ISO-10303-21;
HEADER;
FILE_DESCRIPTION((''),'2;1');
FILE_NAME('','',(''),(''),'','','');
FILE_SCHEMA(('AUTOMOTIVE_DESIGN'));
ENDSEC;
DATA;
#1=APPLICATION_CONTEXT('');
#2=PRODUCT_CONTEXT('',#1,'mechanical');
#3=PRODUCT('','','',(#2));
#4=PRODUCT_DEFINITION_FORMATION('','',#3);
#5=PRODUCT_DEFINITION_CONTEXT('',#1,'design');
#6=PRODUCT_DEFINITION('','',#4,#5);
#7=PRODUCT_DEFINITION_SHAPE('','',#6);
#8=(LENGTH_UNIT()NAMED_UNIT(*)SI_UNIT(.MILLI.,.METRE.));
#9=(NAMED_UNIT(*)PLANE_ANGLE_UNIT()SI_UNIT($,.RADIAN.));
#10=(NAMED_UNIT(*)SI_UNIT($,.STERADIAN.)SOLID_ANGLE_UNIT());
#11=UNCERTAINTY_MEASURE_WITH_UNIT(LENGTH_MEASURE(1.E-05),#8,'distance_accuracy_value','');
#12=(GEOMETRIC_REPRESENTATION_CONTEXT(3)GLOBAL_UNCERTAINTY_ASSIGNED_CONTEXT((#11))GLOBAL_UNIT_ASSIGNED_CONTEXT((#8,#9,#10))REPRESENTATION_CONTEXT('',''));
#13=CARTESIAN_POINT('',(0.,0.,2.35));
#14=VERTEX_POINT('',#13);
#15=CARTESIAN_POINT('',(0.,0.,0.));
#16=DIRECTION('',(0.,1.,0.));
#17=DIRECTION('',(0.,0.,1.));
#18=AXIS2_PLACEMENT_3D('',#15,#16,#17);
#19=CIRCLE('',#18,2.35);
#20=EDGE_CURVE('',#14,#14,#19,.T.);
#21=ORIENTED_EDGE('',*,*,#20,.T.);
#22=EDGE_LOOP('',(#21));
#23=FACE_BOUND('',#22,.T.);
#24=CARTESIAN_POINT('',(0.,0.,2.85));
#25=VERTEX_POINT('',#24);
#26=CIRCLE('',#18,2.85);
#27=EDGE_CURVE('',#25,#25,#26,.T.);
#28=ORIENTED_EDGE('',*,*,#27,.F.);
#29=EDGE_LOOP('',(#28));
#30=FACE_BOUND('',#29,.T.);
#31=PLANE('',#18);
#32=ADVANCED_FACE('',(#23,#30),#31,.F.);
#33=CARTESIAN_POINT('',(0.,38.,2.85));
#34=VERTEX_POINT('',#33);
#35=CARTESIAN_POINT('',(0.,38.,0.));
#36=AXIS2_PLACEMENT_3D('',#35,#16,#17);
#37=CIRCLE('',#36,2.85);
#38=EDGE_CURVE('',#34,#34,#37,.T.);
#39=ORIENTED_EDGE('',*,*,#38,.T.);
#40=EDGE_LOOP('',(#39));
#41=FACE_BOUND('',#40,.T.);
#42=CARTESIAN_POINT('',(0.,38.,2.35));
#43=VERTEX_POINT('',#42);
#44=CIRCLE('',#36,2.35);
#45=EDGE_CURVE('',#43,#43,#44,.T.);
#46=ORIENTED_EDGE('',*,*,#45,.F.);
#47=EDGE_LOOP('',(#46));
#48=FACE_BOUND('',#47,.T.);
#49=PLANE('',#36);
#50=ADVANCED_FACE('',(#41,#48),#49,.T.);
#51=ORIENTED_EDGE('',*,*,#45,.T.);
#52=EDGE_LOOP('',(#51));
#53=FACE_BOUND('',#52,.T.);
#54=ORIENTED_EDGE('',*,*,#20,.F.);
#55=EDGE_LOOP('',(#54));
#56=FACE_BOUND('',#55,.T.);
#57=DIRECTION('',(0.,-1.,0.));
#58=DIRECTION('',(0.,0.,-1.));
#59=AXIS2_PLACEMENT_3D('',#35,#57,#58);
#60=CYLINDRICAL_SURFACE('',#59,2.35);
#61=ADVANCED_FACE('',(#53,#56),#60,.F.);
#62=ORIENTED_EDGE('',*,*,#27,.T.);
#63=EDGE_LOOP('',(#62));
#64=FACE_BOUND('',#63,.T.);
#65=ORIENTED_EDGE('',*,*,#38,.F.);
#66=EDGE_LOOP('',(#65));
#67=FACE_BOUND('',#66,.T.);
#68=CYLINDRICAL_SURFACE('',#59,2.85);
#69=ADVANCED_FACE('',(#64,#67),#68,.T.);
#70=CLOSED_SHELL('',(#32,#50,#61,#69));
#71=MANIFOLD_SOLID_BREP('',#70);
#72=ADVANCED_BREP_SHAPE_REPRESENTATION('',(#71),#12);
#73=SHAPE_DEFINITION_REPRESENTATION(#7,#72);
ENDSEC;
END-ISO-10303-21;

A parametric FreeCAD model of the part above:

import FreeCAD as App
import Part
import Sketcher

doc = App.newDocument("Part")
params = doc.addObject("Spreadsheet::Sheet", "Params")
for row, (alias, value) in enumerate([
    ("sketch1_diameter", "5.7 mm"),
    ("sketch1_diameter2", "4.7 mm"),
    ("pad1_length", "38 mm"),
], start=1):
    params.set(f"A{row}", alias)
    params.set(f"B{row}", "=" + value)
    params.setAlias(f"B{row}", alias)

body = doc.addObject("PartDesign::Body", "Body")

sketch1 = doc.addObject("Sketcher::SketchObject", "Sketch")
body.addObject(sketch1)
sketch1.AttachmentSupport = (doc.XZ_Plane, [""])
sketch1.MapMode = "FlatFace"
sketch1.addGeometry(Part.Circle(App.Vector(0, 0, 0), App.Vector(0, 0, 1), 2.9), False)
sketch1.addGeometry(Part.Circle(App.Vector(0, 0, 0), App.Vector(0, 0, 1), 2.4), False)
sketch1.addConstraint(Sketcher.Constraint("Coincident", 0, 3, -1, 1))
sketch1.addConstraint(Sketcher.Constraint("Coincident", 1, 3, -1, 1))
sketch1.addConstraint(Sketcher.Constraint("Diameter", 0, 5.7))
sketch1.addConstraint(Sketcher.Constraint("Diameter", 1, 4.7))
sketch1.setExpression("Constraints[2]", "Params.sketch1_diameter")
sketch1.setExpression("Constraints[3]", "Params.sketch1_diameter2")
pad1 = doc.addObject("PartDesign::Pad", "Pad")
body.addObject(pad1)
pad1.Profile = sketch1
pad1.setExpression("Length", "Params.pad1_length")
pad1.Reversed = True

doc.recompute()
